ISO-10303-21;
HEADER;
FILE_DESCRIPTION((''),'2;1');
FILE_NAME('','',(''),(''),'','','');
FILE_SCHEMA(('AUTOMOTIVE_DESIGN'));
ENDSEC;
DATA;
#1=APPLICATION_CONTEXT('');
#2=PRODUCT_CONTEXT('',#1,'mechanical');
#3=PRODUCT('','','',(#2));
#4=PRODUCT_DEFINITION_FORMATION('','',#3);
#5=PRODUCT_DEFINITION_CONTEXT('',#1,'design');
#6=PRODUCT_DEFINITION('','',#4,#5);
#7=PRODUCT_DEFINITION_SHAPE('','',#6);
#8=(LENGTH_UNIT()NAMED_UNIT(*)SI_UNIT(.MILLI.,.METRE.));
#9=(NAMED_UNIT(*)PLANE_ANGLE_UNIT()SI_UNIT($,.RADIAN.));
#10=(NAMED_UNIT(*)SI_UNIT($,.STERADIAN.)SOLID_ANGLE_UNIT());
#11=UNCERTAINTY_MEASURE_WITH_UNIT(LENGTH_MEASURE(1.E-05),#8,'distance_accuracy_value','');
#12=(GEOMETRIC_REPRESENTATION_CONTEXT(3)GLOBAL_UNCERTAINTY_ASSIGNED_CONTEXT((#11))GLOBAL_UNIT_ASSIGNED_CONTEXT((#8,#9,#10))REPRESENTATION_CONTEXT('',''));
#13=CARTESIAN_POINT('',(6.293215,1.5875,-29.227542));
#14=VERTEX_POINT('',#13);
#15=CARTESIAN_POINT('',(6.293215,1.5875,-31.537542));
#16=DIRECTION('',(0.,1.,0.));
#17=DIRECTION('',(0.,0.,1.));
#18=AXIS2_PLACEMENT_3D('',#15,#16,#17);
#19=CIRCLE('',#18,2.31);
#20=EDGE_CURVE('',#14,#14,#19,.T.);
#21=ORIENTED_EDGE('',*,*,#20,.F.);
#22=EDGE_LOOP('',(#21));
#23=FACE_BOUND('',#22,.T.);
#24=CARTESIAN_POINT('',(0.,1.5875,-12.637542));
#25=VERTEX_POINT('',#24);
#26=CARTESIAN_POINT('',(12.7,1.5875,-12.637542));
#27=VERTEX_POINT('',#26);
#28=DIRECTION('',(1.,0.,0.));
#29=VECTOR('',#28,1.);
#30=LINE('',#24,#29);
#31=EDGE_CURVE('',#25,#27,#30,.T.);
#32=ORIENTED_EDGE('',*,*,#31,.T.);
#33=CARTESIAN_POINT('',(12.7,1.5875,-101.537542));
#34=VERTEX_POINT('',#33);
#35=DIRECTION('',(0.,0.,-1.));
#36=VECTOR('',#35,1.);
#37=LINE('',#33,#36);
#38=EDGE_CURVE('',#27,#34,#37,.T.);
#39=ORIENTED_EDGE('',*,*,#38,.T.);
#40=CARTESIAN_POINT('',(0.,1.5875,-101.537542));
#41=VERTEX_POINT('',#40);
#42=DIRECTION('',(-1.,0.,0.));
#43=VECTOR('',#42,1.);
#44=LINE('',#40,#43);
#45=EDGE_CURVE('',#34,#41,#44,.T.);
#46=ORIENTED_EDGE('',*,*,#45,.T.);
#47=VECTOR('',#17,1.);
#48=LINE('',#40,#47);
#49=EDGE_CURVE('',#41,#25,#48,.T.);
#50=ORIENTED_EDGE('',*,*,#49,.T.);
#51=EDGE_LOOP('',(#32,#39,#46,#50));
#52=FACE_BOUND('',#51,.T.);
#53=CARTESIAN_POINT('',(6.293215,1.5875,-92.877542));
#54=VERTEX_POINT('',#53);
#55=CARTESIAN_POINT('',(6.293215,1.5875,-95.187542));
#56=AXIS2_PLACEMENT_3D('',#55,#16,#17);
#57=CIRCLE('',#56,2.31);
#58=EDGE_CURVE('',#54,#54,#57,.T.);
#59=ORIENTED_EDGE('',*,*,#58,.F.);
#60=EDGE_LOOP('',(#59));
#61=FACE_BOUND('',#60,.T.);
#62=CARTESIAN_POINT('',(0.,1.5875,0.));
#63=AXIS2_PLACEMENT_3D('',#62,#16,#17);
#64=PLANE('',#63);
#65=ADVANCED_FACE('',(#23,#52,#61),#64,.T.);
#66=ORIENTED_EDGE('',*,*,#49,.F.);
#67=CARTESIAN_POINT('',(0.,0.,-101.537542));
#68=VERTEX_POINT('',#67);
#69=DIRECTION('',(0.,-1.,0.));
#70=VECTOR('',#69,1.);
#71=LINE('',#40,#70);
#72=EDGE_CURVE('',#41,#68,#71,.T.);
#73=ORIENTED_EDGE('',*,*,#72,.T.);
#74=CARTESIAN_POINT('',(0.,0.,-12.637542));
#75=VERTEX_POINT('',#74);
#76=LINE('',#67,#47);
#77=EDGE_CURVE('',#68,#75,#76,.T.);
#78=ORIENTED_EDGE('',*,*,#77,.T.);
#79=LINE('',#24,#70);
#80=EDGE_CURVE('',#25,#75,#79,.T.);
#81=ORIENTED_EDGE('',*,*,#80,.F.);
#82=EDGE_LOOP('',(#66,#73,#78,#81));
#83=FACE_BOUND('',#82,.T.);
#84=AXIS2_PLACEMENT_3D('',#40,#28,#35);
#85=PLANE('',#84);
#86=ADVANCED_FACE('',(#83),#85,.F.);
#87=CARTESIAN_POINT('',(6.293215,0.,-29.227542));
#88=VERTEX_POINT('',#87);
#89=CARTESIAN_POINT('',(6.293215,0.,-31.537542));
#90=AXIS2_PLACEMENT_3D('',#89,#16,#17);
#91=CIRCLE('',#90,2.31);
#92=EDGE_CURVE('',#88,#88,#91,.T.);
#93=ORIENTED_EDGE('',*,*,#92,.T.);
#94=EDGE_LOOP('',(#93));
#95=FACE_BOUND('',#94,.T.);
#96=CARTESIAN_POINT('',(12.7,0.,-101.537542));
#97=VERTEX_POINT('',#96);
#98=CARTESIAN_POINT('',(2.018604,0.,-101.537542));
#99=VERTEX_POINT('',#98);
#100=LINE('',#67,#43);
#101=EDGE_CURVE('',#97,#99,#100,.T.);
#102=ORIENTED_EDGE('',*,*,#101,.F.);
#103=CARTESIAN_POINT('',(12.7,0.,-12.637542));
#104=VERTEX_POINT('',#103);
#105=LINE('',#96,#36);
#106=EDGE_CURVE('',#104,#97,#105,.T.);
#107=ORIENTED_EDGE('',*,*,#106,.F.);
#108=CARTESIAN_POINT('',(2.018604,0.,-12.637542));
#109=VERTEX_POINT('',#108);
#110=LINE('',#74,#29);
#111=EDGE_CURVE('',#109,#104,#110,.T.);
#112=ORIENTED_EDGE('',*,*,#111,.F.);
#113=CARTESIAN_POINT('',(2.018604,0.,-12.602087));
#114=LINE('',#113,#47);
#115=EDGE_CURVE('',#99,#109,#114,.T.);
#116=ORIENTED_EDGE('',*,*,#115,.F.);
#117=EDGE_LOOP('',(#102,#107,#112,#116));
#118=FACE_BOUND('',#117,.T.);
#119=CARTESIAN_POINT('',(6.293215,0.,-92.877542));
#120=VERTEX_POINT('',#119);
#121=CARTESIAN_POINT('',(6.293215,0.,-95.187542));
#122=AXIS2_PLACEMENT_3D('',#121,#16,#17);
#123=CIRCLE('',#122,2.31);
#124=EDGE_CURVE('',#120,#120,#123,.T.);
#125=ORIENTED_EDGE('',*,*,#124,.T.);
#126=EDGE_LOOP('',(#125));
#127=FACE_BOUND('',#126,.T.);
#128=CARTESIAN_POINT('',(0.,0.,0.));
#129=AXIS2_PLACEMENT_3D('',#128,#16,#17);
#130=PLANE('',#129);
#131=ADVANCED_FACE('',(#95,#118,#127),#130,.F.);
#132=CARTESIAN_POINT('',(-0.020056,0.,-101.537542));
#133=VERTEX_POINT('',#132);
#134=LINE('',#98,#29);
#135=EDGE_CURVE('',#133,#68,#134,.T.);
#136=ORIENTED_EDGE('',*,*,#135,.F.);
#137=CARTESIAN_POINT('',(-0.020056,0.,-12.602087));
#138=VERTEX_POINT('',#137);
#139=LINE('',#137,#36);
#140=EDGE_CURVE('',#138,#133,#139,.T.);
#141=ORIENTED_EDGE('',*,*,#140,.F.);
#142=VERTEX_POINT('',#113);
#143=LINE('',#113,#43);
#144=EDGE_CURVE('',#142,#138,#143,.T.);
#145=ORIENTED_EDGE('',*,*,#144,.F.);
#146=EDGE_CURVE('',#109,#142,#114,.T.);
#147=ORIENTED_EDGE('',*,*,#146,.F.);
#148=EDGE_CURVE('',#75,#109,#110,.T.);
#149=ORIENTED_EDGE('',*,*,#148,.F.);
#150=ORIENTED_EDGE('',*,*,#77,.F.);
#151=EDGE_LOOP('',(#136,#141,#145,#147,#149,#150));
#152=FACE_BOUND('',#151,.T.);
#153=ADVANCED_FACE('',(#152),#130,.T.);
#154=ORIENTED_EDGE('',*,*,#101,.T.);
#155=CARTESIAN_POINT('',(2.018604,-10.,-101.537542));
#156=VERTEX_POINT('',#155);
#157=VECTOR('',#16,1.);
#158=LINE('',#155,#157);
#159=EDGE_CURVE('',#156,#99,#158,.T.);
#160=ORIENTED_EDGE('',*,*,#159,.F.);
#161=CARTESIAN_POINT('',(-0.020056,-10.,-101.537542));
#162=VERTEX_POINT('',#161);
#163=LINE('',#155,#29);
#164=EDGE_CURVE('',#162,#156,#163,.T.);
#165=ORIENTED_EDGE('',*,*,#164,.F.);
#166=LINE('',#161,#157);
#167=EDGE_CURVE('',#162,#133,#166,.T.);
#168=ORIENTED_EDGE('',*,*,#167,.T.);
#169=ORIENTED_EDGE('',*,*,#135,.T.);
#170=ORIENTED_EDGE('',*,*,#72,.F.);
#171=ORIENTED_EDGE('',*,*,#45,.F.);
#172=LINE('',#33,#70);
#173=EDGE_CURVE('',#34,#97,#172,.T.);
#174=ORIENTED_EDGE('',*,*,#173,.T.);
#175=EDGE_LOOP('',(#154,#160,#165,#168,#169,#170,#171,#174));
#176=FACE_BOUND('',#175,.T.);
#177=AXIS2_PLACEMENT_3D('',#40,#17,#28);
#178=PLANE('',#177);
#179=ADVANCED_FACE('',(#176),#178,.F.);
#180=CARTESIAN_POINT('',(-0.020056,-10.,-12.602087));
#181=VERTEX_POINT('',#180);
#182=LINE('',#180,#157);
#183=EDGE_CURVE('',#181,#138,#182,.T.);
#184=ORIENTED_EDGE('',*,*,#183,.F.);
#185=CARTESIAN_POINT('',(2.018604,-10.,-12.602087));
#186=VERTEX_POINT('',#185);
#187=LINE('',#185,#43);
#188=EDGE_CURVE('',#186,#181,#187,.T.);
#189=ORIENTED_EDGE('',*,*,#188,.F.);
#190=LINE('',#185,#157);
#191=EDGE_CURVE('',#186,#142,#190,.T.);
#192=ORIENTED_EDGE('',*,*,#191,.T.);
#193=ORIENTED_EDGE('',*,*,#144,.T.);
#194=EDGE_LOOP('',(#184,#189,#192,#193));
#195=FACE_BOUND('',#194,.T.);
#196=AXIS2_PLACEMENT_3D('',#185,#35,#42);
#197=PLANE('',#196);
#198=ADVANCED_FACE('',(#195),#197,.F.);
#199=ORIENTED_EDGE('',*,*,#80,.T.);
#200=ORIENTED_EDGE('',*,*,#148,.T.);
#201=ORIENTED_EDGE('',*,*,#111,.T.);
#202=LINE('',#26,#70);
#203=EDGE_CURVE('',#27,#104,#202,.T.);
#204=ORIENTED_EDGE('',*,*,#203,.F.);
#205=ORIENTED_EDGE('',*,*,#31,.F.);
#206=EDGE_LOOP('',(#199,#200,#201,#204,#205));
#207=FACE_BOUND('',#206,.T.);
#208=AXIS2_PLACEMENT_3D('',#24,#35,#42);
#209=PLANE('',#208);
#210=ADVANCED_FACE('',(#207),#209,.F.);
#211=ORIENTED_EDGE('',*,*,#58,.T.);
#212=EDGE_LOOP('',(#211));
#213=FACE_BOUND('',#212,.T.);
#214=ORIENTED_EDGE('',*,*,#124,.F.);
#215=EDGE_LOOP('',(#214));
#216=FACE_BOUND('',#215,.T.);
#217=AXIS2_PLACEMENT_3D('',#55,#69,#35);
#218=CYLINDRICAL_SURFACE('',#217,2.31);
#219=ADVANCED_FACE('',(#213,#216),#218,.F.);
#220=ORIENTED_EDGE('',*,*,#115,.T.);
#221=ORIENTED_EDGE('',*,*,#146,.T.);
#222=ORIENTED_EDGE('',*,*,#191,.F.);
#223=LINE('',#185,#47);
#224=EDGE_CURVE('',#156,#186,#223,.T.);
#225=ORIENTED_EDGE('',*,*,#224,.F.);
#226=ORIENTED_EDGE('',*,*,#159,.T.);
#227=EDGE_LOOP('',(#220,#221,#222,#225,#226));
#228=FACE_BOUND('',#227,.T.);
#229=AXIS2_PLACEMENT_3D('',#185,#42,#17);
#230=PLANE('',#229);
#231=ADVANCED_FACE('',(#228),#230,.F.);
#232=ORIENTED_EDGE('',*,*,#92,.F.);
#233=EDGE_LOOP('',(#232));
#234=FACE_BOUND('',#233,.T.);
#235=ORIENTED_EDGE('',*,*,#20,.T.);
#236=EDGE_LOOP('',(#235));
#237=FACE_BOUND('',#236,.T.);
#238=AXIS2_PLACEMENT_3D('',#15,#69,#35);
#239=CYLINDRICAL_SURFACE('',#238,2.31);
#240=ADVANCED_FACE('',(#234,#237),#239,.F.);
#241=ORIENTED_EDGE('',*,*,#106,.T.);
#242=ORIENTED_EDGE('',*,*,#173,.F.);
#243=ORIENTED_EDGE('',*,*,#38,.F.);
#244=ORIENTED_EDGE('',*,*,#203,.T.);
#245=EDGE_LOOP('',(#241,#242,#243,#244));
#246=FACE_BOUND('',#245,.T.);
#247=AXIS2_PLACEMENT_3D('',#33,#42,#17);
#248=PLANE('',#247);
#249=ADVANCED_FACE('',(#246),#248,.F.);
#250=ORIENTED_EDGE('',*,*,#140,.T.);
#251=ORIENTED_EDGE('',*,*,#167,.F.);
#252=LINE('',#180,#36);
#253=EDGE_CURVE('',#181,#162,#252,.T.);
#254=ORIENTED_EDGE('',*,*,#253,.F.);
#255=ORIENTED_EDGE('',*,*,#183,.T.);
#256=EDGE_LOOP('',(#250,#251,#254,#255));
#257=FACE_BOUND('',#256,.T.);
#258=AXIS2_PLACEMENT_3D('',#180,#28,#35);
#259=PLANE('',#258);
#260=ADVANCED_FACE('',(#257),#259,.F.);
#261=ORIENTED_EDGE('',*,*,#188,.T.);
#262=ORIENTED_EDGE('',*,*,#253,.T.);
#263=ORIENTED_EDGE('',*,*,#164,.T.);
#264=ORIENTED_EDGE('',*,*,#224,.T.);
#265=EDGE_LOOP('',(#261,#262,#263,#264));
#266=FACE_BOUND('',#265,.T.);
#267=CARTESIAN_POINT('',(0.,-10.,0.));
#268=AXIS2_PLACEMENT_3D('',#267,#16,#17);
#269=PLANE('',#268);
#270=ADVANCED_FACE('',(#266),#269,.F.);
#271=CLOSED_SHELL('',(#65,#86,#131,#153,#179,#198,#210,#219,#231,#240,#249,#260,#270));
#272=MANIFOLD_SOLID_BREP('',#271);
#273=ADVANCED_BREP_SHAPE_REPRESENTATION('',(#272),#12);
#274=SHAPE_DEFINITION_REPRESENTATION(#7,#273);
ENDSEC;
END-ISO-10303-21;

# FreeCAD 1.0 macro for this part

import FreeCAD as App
import Part
import Sketcher
Q = App.Units.Quantity

doc = App.newDocument("Part")
params = doc.addObject("Spreadsheet::Sheet", "Params")
for row, (alias, value) in enumerate([
    ("sketch1_width", "0.5 in"),
    ("sketch1_height", "3.5 in"),
    ("pad1_length", "0.0625 in"),
    ("pad2_length", "10 mm"),
], start=1):
    params.set(f"A{row}", alias)
    params.set(f"B{row}", "=" + value)
    params.setAlias(f"B{row}", alias)

body = doc.addObject("PartDesign::Body", "Body")

# Sketch on XZ plane
sketch1 = doc.addObject("Sketcher::SketchObject", "Sketch")
body.addObject(sketch1)
sketch1.AttachmentSupport = (doc.XZ_Plane, [""])
sketch1.MapMode = "FlatFace"
sketch1.addGeometry([
    Part.LineSegment(App.Vector(0, -101.5, 0), App.Vector(0, -12.6, 0)),  # 0
    Part.LineSegment(App.Vector(0, -12.6, 0), App.Vector(12.7, -12.6, 0)),  # 1
    Part.LineSegment(App.Vector(12.7, -12.6, 0), App.Vector(12.7, -101.5, 0)),  # 2
    Part.LineSegment(App.Vector(12.7, -101.5, 0), App.Vector(0, -101.5, 0)),  # 3
    Part.Circle(App.Vector(6.3, -31.5, 0), App.Vector(0, 0, 1), 2.3),  # 4
    Part.Circle(App.Vector(6.3, -95.2, 0), App.Vector(0, 0, 1), 2.3),  # 5
], False)
sketch1.addConstraint([
    Sketcher.Constraint("Coincident", 0, 2, 1, 1),
    Sketcher.Constraint("Coincident", 1, 2, 2, 1),
    Sketcher.Constraint("Coincident", 2, 2, 3, 1),
    Sketcher.Constraint("Coincident", 3, 2, 0, 1),
    Sketcher.Constraint("Vertical", 0),
    Sketcher.Constraint("Horizontal", 1),
    Sketcher.Constraint("Vertical", 2),
    Sketcher.Constraint("Horizontal", 3),
    Sketcher.Constraint("Equal", 4, 5),
    Sketcher.Constraint("PointOnObject", 0, 2, -2),
    Sketcher.Constraint("Vertical", 4, 3, 5, 3),
    Sketcher.Constraint("DistanceX", 1, 1, 1, 2, Q("0.5 in")),
    Sketcher.Constraint("DistanceY", 0, 1, 0, 2, Q("3.5 in")),
    Sketcher.Constraint("Diameter", 4, Q("4.62 mm")),
    Sketcher.Constraint("DistanceY", 5, 3, 0, 2, Q("3.25 in")),
    Sketcher.Constraint("DistanceY", 5, 3, 4, 3, Q("63.65 mm")),
    Sketcher.Constraint("DistanceX", -1, 1, 4, 3, Q("6.293215 mm")),
    Sketcher.Constraint("DistanceY", 4, 3, -1, 1, Q("31.537542 mm")),
])
sketch1.setExpression("Constraints[11]", "Params.sketch1_width")
sketch1.setExpression("Constraints[12]", "Params.sketch1_height")
pad1 = doc.addObject("PartDesign::Pad", "Pad")
body.addObject(pad1)
pad1.Profile = sketch1
pad1.setExpression("Length", "Params.pad1_length")
pad1.Reversed = True

# Sketch on XZ plane
sketch2 = doc.addObject("Sketcher::SketchObject", "Sketch001")
body.addObject(sketch2)
sketch2.AttachmentSupport = (doc.XZ_Plane, [""])
sketch2.MapMode = "FlatFace"
sketch2.addGeometry([
    Part.LineSegment(App.Vector(2, -101.5, 0), App.Vector(2, -12.6, 0)),
    Part.LineSegment(App.Vector(2, -12.6, 0), App.Vector(0, -12.6, 0)),
    Part.LineSegment(App.Vector(0, -12.6, 0), App.Vector(0, -101.5, 0)),
    Part.LineSegment(App.Vector(0, -101.5, 0), App.Vector(2, -101.5, 0)),
], False)
sketch2.addConstraint([
    Sketcher.Constraint("Coincident", 0, 2, 1, 1),
    Sketcher.Constraint("Coincident", 1, 2, 2, 1),
    Sketcher.Constraint("Coincident", 2, 2, 3, 1),
    Sketcher.Constraint("Coincident", 3, 2, 0, 1),
    Sketcher.Constraint("Vertical", 0),
    Sketcher.Constraint("Horizontal", 1),
    Sketcher.Constraint("Vertical", 2),
    Sketcher.Constraint("Horizontal", 3),
    Sketcher.Constraint("DistanceX", 1, 2, 1, 1, Q("2.038661 mm")),
    Sketcher.Constraint("DistanceY", 0, 1, 0, 2, Q("88.935455 mm")),
    Sketcher.Constraint("DistanceX", -1, 1, 0, 2, Q("2.018604 mm")),
    Sketcher.Constraint("DistanceY", 0, 2, -1, 1, Q("12.602087 mm")),
])
pad2 = doc.addObject("PartDesign::Pad", "Pad001")
body.addObject(pad2)
pad2.Profile = sketch2
pad2.setExpression("Length", "Params.pad2_length")

doc.recompute()
